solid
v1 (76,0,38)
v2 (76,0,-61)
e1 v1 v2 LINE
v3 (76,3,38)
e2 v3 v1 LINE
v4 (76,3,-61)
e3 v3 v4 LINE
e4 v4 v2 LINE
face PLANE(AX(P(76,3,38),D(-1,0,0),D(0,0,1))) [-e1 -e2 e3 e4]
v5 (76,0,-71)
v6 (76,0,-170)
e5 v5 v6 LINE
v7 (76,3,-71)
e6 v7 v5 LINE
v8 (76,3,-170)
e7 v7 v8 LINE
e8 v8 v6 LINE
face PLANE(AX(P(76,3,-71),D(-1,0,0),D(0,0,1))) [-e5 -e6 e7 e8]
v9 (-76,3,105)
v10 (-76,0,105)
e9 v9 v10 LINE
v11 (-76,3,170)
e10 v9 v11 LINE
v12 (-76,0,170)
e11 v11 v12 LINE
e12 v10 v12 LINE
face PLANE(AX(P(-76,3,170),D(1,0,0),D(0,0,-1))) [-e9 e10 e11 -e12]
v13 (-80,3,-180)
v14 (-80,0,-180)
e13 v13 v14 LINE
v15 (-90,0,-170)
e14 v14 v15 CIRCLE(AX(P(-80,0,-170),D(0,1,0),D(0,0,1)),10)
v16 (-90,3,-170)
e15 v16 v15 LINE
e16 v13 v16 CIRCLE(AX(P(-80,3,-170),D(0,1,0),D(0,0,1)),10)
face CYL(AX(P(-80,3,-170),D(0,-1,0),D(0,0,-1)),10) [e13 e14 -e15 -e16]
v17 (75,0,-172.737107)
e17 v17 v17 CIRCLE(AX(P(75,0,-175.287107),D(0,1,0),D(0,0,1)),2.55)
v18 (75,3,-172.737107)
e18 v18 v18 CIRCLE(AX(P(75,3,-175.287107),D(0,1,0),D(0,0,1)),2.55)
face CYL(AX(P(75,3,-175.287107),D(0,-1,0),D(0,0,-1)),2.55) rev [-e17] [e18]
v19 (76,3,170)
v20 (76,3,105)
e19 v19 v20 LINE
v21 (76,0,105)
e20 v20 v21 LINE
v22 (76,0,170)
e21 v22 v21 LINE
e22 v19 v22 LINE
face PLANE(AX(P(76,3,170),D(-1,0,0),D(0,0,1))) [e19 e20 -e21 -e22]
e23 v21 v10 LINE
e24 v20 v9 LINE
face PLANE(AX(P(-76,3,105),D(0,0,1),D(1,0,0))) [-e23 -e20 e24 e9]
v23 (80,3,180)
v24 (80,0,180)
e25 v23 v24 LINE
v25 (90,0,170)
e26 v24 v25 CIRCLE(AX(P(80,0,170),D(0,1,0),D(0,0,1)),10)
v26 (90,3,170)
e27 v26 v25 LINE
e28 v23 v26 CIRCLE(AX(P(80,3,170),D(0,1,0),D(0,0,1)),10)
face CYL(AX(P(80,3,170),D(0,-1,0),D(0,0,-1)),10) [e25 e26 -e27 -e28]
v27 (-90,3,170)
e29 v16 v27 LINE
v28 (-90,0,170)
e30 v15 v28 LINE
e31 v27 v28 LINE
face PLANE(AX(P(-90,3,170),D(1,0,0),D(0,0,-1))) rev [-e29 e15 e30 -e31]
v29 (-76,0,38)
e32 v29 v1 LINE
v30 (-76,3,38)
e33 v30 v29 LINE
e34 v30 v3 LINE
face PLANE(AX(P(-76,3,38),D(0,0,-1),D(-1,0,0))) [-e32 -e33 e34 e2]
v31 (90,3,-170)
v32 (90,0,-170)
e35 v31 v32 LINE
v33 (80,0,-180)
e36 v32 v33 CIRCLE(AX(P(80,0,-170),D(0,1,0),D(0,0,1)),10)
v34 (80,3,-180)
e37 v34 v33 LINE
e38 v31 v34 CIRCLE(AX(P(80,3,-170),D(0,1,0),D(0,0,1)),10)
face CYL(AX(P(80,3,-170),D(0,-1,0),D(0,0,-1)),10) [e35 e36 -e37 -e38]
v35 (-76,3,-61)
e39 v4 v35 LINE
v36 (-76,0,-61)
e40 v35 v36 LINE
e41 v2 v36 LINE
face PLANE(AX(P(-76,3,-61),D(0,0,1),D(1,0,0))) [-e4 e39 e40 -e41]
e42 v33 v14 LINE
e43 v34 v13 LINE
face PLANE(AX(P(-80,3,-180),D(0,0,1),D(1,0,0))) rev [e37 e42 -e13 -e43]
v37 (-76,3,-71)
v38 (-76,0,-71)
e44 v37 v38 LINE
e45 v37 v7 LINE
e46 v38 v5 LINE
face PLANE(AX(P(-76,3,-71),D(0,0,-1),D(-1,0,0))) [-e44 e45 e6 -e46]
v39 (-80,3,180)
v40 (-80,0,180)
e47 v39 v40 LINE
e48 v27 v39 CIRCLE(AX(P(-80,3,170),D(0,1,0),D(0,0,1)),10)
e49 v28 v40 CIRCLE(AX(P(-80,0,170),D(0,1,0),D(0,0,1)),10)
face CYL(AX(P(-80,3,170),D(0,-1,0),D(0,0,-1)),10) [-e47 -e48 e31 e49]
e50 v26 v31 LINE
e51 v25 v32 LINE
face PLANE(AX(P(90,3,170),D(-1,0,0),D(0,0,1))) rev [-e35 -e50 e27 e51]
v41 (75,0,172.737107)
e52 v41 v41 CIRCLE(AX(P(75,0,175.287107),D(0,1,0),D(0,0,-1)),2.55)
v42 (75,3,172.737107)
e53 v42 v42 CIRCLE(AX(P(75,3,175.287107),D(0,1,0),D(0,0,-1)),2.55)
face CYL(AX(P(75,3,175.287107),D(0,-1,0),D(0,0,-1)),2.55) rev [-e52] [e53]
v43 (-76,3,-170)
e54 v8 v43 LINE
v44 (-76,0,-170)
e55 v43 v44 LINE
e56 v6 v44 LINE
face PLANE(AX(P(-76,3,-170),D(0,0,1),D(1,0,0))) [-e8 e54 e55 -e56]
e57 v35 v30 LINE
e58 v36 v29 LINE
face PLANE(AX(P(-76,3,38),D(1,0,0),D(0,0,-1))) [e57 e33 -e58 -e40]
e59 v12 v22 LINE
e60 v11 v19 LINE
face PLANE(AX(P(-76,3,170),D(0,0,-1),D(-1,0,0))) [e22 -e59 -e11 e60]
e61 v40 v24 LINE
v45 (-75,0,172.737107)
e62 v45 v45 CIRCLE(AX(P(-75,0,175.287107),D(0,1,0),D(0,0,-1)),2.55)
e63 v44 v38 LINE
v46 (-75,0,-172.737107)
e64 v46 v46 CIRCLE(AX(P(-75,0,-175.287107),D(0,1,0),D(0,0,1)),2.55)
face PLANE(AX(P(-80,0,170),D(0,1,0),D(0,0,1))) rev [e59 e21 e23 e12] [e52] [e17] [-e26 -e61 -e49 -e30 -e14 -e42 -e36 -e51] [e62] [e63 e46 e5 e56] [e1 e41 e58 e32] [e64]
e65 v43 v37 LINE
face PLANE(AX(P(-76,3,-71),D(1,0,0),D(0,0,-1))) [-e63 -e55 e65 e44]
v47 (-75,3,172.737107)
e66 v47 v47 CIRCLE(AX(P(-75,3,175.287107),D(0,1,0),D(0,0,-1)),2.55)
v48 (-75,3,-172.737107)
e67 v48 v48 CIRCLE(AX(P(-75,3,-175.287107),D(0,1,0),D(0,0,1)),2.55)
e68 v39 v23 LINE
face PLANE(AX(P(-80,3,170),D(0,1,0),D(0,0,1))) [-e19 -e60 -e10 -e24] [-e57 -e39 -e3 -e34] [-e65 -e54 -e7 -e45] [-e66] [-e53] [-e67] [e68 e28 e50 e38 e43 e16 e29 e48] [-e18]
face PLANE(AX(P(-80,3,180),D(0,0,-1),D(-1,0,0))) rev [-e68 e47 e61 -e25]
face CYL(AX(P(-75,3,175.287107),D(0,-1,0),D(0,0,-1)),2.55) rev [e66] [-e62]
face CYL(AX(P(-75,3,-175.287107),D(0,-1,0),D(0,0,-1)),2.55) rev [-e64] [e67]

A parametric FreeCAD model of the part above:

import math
import FreeCAD as App
import Part
import Sketcher

V = App.Vector

doc = App.newDocument("Part")
params = doc.addObject("Spreadsheet::Sheet", "Params")
for row, (alias, value) in enumerate([
    ("sketch1_radius", "10 mm"),
    ("sketch1_diameter", "5.1 mm"),
    ("sketch1_width", "160 mm"),
    ("sketch1_width2", "152 mm"),
    ("sketch1_height", "340 mm"),
    ("pad1_length", "3 mm"),
], start=1):
    params.set(f"A{row}", alias)
    params.set(f"B{row}", "=" + value)
    params.setAlias(f"B{row}", alias)

body = doc.addObject("PartDesign::Body", "Body")

# Sketch on XZ plane
sketch1 = body.newObject("Sketcher::SketchObject", "Sketch")
sketch1.AttachmentSupport = (doc.getObject("XZ_Plane"), [""])
sketch1.MapMode = "FlatFace"
sketch1.addGeometry(Part.LineSegment(V(-80, 180, 0), V(80, 180, 0)), False)
sketch1.addGeometry(Part.ArcOfCircle(Part.Circle(V(80, 170, 0), V(0, 0, 1), 10), math.radians(0), math.radians(90)), False)
sketch1.addGeometry(Part.LineSegment(V(90, 170, 0), V(90, -170, 0)), False)
sketch1.addGeometry(Part.ArcOfCircle(Part.Circle(V(80, -170, 0), V(0, 0, 1), 10), math.radians(-90), math.radians(0)), False)
sketch1.addGeometry(Part.LineSegment(V(80, -180, 0), V(-80, -180, 0)), False)
sketch1.addGeometry(Part.ArcOfCircle(Part.Circle(V(-80, -170, 0), V(0, 0, 1), 10), math.radians(180), math.radians(270)), False)
sketch1.addGeometry(Part.LineSegment(V(-90, -170, 0), V(-90, 170, 0)), False)
sketch1.addGeometry(Part.ArcOfCircle(Part.Circle(V(-80, 170, 0), V(0, 0, 1), 10), math.radians(90), math.radians(180)), False)
sketch1.addGeometry(Part.Circle(V(-75, 175.3, 0), V(0, 0, 1), 2.5), False)
sketch1.addGeometry(Part.LineSegment(V(76, 170, 0), V(-76, 170, 0)), False)
sketch1.addGeometry(Part.LineSegment(V(-76, 170, 0), V(-76, 105, 0)), False)
sketch1.addGeometry(Part.LineSegment(V(-76, 105, 0), V(76, 105, 0)), False)
sketch1.addGeometry(Part.LineSegment(V(76, 105, 0), V(76, 170, 0)), False)
sketch1.addGeometry(Part.Circle(V(75, 175.3, 0), V(0, 0, 1), 2.5), False)
sketch1.addGeometry(Part.Circle(V(-75, -175.3, 0), V(0, 0, 1), 2.5), False)
sketch1.addGeometry(Part.LineSegment(V(76, 38, 0), V(-76, 38, 0)), False)
sketch1.addGeometry(Part.LineSegment(V(-76, 38, 0), V(-76, -61, 0)), False)
sketch1.addGeometry(Part.LineSegment(V(-76, -61, 0), V(76, -61, 0)), False)
sketch1.addGeometry(Part.LineSegment(V(76, -61, 0), V(76, 38, 0)), False)
sketch1.addGeometry(Part.LineSegment(V(76, -71, 0), V(-76, -71, 0)), False)
sketch1.addGeometry(Part.LineSegment(V(-76, -71, 0), V(-76, -170, 0)), False)
sketch1.addGeometry(Part.LineSegment(V(-76, -170, 0), V(76, -170, 0)), False)
sketch1.addGeometry(Part.LineSegment(V(76, -170, 0), V(76, -71, 0)), False)
sketch1.addGeometry(Part.Circle(V(75, -175.3, 0), V(0, 0, 1), 2.5), False)
sketch1.addConstraint(Sketcher.Constraint("Tangent", 0, 2, 1, 2))
sketch1.addConstraint(Sketcher.Constraint("Tangent", 1, 1, 2, 1))
sketch1.addConstraint(Sketcher.Constraint("Tangent", 2, 2, 3, 2))
sketch1.addConstraint(Sketcher.Constraint("Tangent", 3, 1, 4, 1))
sketch1.addConstraint(Sketcher.Constraint("Tangent", 4, 2, 5, 2))
sketch1.addConstraint(Sketcher.Constraint("Tangent", 5, 1, 6, 1))
sketch1.addConstraint(Sketcher.Constraint("Tangent", 6, 2, 7, 2))
sketch1.addConstraint(Sketcher.Constraint("Tangent", 7, 1, 0, 1))
sketch1.addConstraint(Sketcher.Constraint("Coincident", 9, 2, 10, 1))
sketch1.addConstraint(Sketcher.Constraint("Coincident", 10, 2, 11, 1))
sketch1.addConstraint(Sketcher.Constraint("Coincident", 11, 2, 12, 1))
sketch1.addConstraint(Sketcher.Constraint("Coincident", 12, 2, 9, 1))
sketch1.addConstraint(Sketcher.Constraint("Coincident", 15, 2, 16, 1))
sketch1.addConstraint(Sketcher.Constraint("Coincident", 16, 2, 17, 1))
sketch1.addConstraint(Sketcher.Constraint("Coincident", 17, 2, 18, 1))
sketch1.addConstraint(Sketcher.Constraint("Coincident", 18, 2, 15, 1))
sketch1.addConstraint(Sketcher.Constraint("Coincident", 19, 2, 20, 1))
sketch1.addConstraint(Sketcher.Constraint("Coincident", 20, 2, 21, 1))
sketch1.addConstraint(Sketcher.Constraint("Coincident", 21, 2, 22, 1))
sketch1.addConstraint(Sketcher.Constraint("Coincident", 22, 2, 19, 1))
sketch1.addConstraint(Sketcher.Constraint("Horizontal", 0))
sketch1.addConstraint(Sketcher.Constraint("Vertical", 2))
sketch1.addConstraint(Sketcher.Constraint("Horizontal", 4))
sketch1.addConstraint(Sketcher.Constraint("Vertical", 6))
sketch1.addConstraint(Sketcher.Constraint("Horizontal", 9))
sketch1.addConstraint(Sketcher.Constraint("Vertical", 10))
sketch1.addConstraint(Sketcher.Constraint("Horizontal", 11))
sketch1.addConstraint(Sketcher.Constraint("Vertical", 12))
sketch1.addConstraint(Sketcher.Constraint("Horizontal", 15))
sketch1.addConstraint(Sketcher.Constraint("Vertical", 16))
sketch1.addConstraint(Sketcher.Constraint("Horizontal", 17))
sketch1.addConstraint(Sketcher.Constraint("Vertical", 18))
sketch1.addConstraint(Sketcher.Constraint("Horizontal", 19))
sketch1.addConstraint(Sketcher.Constraint("Vertical", 20))
sketch1.addConstraint(Sketcher.Constraint("Horizontal", 21))
sketch1.addConstraint(Sketcher.Constraint("Vertical", 22))
sketch1.addConstraint(Sketcher.Constraint("Equal", 1, 3))
sketch1.addConstraint(Sketcher.Constraint("Equal", 3, 5))
sketch1.addConstraint(Sketcher.Constraint("Equal", 5, 7))
sketch1.addConstraint(Sketcher.Constraint("Equal", 8, 13))
sketch1.addConstraint(Sketcher.Constraint("Equal", 13, 14))
sketch1.addConstraint(Sketcher.Constraint("Equal", 14, 23))
sketch1.addConstraint(Sketcher.Constraint("Symmetric", 1, 3, 5, 3, -1, 1))
sketch1.addConstraint(Sketcher.Constraint("Symmetric", 13, 3, 14, 3, -1, 1))
sketch1.addConstraint(Sketcher.Constraint("Symmetric", 8, 3, 23, 3, -1, 1))
sketch1.addConstraint(Sketcher.Constraint("Symmetric", 12, 2, 20, 2, -1, 1))
sketch1.addConstraint(Sketcher.Constraint("Symmetric", 8, 3, 13, 3, -2))
sketch1.addConstraint(Sketcher.Constraint("Horizontal", 6, 2, 9, 2))
sketch1.addConstraint(Sketcher.Constraint("Vertical", 10, 2, 15, 2))
sketch1.addConstraint(Sketcher.Constraint("Vertical", 12, 2, 17, 2))
sketch1.addConstraint(Sketcher.Constraint("Vertical", 16, 2, 19, 2))
sketch1.addConstraint(Sketcher.Constraint("Vertical", 18, 2, 21, 2))
sketch1.addConstraint(Sketcher.Constraint("Equal", 18, 20))
sketch1.addConstraint(Sketcher.Constraint("Radius", 1, 10.0))
sketch1.addConstraint(Sketcher.Constraint("Diameter", 8, 5.1))
sketch1.addConstraint(Sketcher.Constraint("DistanceX", 0, 1, 0, 2, 160.0))
sketch1.addConstraint(Sketcher.Constraint("DistanceX", 9, 2, 9, 1, 152.0))
sketch1.addConstraint(Sketcher.Constraint("DistanceY", 2, 2, 2, 1, 340.0))
sketch1.addConstraint(Sketcher.Constraint("DistanceY", 10, 2, 10, 1, 65.0))
sketch1.addConstraint(Sketcher.Constraint("DistanceY", 16, 2, 16, 1, 99.0))
sketch1.addConstraint(Sketcher.Constraint("DistanceX", 8, 3, -1, 1, 75.0))
sketch1.addConstraint(Sketcher.Constraint("DistanceY", -1, 1, 15, 2, 38.0))
sketch1.addConstraint(Sketcher.Constraint("DistanceY", -1, 1, 8, 3, 175.287107))
sketch1.setExpression("Constraints[53]", "Params.sketch1_radius")
sketch1.setExpression("Constraints[54]", "Params.sketch1_diameter")
sketch1.setExpression("Constraints[55]", "Params.sketch1_width")
sketch1.setExpression("Constraints[56]", "Params.sketch1_width2")
sketch1.setExpression("Constraints[57]", "Params.sketch1_height")
pad1 = body.newObject("PartDesign::Pad", "Pad")
pad1.Profile = sketch1
pad1.setExpression("Length", "Params.pad1_length")
pad1.Reversed = True

doc.recompute()
